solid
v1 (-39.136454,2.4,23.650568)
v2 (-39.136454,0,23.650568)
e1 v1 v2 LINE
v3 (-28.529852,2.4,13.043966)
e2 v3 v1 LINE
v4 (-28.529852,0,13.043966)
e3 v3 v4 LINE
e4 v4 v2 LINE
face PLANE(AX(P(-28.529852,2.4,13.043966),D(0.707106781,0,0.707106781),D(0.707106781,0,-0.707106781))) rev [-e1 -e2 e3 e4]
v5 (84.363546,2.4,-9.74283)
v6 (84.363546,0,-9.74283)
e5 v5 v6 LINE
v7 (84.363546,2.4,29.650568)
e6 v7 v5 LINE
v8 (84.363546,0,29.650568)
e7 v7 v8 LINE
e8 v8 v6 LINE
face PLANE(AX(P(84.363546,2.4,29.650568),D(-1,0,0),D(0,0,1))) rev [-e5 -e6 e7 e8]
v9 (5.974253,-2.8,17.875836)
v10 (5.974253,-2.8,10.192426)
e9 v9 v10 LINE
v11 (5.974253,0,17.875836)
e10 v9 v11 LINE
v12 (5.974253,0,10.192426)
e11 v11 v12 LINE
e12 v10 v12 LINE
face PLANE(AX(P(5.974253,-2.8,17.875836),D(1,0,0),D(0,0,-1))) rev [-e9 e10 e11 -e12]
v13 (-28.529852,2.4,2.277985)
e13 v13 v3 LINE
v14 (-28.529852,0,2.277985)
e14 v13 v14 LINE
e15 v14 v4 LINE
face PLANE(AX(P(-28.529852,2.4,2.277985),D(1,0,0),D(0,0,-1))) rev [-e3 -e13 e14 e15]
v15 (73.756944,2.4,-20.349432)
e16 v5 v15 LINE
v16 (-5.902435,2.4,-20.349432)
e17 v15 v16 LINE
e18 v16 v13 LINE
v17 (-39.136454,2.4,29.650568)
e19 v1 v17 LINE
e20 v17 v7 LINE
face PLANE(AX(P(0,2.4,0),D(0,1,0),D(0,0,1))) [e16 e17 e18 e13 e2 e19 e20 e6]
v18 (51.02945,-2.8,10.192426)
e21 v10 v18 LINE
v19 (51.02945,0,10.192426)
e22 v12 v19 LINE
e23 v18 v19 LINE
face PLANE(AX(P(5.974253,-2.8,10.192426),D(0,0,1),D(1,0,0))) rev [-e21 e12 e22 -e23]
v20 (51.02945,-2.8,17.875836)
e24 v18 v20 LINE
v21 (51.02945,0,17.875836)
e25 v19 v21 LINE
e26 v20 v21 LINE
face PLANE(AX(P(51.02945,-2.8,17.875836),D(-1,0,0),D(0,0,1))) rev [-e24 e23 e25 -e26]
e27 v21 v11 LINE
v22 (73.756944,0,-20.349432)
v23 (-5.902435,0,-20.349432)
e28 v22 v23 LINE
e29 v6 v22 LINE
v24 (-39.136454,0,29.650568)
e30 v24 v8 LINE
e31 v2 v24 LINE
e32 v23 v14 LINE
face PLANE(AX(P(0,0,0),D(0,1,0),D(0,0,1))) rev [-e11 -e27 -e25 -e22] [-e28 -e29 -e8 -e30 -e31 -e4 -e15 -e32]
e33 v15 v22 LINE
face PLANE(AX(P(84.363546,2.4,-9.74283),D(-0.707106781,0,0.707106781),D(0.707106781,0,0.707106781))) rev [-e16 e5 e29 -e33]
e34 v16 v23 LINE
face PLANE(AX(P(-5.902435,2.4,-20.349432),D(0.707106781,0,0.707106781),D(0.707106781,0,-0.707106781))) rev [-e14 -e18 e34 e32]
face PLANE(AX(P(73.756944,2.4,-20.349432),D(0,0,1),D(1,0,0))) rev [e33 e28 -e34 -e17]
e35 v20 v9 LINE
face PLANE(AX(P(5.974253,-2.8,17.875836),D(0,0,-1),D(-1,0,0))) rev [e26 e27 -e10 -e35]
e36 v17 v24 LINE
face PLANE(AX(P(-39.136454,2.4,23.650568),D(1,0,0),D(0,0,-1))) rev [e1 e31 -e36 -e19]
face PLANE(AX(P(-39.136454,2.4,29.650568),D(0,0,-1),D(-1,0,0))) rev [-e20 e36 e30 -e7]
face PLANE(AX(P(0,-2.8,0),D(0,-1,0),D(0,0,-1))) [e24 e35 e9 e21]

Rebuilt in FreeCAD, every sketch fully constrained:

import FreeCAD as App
import Part
import Sketcher
Q = App.Units.Quantity


def add_polygon(sketch, points):
    """Adds a closed chain of lines whose ends are joined by coincident constraints."""
    first, n = sketch.GeometryCount, len(points)
    for a, b in zip(points, points[1:] + points[:1]):
        sketch.addGeometry(Part.LineSegment(App.Vector(*a, 0), App.Vector(*b, 0)), False)
    for i in range(n):
        sketch.addConstraint(Sketcher.Constraint("Coincident", first + i, 2, first + (i + 1) % n, 1))

doc = App.newDocument("Part")
body = doc.addObject("PartDesign::Body", "Body")

sketch1 = doc.addObject("Sketcher::SketchObject", "Sketch")
body.addObject(sketch1)
sketch1.AttachmentSupport = (doc.XZ_Plane, [""])
sketch1.MapMode = "FlatFace"
add_polygon(sketch1, [(-39, 30), (84, 30), (84, -10), (74, -20), (-6, -20), (-29, 2), (-29, 13), (-39, 24)])
sketch1.addConstraint([
    Sketcher.Constraint("Horizontal", 0),
    Sketcher.Constraint("Vertical", 1),
    Sketcher.Constraint("Horizontal", 3),
    Sketcher.Constraint("Vertical", 5),
    Sketcher.Constraint("Vertical", 7),
    Sketcher.Constraint("Perpendicular", 2, 4),
    Sketcher.Constraint("Parallel", 4, 6),
    Sketcher.Constraint("Equal", 2, 6),
    Sketcher.Constraint("DistanceY", 7, 1, 7, 2, 6.0),
    Sketcher.Constraint("Angle", 2, Q("-135 deg")),
    Sketcher.Constraint("Distance", 2, 15.0),
    Sketcher.Constraint("Distance", 4, 32.0),
    Sketcher.Constraint("DistanceX", 0, 1, 0, 2, 123.5),
    Sketcher.Constraint("DistanceY", 2, 2, 0, 2, 50.0),
    Sketcher.Constraint("DistanceY", -1, 1, 0, 2, 29.650568),
    Sketcher.Constraint("DistanceX", -1, 1, 0, 2, 84.363546),
])
pad1 = doc.addObject("PartDesign::Pad", "Pad")
body.addObject(pad1)
pad1.Profile = sketch1
pad1.Length = 2.4
pad1.Reversed = True

sketch2 = doc.addObject("Sketcher::SketchObject", "Sketch001")
body.addObject(sketch2)
sketch2.AttachmentSupport = (doc.XZ_Plane, [""])
sketch2.MapMode = "FlatFace"
add_polygon(sketch2, [(51, 10), (51, 18), (6, 18), (6, 10)])
sketch2.addConstraint([
    Sketcher.Constraint("Vertical", 0),
    Sketcher.Constraint("Horizontal", 1),
    Sketcher.Constraint("Vertical", 2),
    Sketcher.Constraint("Horizontal", 3),
    Sketcher.Constraint("DistanceY", 0, 1, 0, 2, 7.68341),
    Sketcher.Constraint("DistanceX", 1, 2, 1, 1, 45.055197),
    Sketcher.Constraint("DistanceX", -1, 1, 0, 2, 51.02945),
    Sketcher.Constraint("DistanceY", -1, 1, 0, 2, 17.875836),
])
pad2 = doc.addObject("PartDesign::Pad", "Pad001")
body.addObject(pad2)
pad2.Profile = sketch2
pad2.Length = 2.8

doc.recompute()
